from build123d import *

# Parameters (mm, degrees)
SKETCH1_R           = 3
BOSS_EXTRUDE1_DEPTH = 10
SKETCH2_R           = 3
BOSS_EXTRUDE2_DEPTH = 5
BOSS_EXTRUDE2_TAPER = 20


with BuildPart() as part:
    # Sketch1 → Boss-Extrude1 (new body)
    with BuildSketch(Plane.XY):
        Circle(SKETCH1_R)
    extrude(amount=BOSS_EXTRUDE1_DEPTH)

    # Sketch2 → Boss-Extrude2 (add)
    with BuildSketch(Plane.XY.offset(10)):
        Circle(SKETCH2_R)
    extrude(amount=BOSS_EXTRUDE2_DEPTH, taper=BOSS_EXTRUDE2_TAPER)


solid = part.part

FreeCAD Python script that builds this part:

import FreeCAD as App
import Part
import Sketcher

V = App.Vector

doc = App.newDocument("Part")
params = doc.addObject("Spreadsheet::Sheet", "Params")
for row, (alias, value) in enumerate([
    ("sketch1_diameter", "6 mm"),
    ("pad1_length", "10 mm"),
    ("sketch2_diameter", "6 mm"),
    ("pad2_length", "5 mm"),
    ("pad2_taper", "-20 deg"),
], start=1):
    params.set(f"A{row}", alias)
    params.set(f"B{row}", "=" + value)
    params.setAlias(f"B{row}", alias)

body = doc.addObject("PartDesign::Body", "Body")

sketch1 = body.newObject("Sketcher::SketchObject", "Sketch")
sketch1.AttachmentSupport = (doc.getObject("XY_Plane"), [""])
sketch1.MapMode = "FlatFace"
sketch1.addGeometry(Part.Circle(V(0, 0, 0), V(0, 0, 1), 3), False)
sketch1.addConstraint([
    Sketcher.Constraint("Coincident", 0, 3, -1, 1),
    Sketcher.Constraint("Diameter", 0, 6.0),
])
sketch1.setExpression("Constraints[1]", "Params.sketch1_diameter")
pad1 = body.newObject("PartDesign::Pad", "Pad")
pad1.Profile = sketch1
pad1.setExpression("Length", "Params.pad1_length")

sketch2 = body.newObject("Sketcher::SketchObject", "Sketch001")
sketch2.AttachmentSupport = (doc.getObject("XY_Plane"), [""])
sketch2.MapMode = "FlatFace"
sketch2.AttachmentOffset = App.Placement(V(0, 0, 10), App.Rotation())
sketch2.addGeometry(Part.Circle(V(0, 0, 0), V(0, 0, 1), 3), False)
sketch2.addConstraint([
    Sketcher.Constraint("Coincident", 0, 3, -1, 1),
    Sketcher.Constraint("Diameter", 0, 6.0),
])
sketch2.setExpression("Constraints[1]", "Params.sketch2_diameter")
pad2 = body.newObject("PartDesign::Pad", "Pad001")
pad2.Profile = sketch2
pad2.setExpression("Length", "Params.pad2_length")
pad2.setExpression("TaperAngle", "Params.pad2_taper")

doc.recompute()
